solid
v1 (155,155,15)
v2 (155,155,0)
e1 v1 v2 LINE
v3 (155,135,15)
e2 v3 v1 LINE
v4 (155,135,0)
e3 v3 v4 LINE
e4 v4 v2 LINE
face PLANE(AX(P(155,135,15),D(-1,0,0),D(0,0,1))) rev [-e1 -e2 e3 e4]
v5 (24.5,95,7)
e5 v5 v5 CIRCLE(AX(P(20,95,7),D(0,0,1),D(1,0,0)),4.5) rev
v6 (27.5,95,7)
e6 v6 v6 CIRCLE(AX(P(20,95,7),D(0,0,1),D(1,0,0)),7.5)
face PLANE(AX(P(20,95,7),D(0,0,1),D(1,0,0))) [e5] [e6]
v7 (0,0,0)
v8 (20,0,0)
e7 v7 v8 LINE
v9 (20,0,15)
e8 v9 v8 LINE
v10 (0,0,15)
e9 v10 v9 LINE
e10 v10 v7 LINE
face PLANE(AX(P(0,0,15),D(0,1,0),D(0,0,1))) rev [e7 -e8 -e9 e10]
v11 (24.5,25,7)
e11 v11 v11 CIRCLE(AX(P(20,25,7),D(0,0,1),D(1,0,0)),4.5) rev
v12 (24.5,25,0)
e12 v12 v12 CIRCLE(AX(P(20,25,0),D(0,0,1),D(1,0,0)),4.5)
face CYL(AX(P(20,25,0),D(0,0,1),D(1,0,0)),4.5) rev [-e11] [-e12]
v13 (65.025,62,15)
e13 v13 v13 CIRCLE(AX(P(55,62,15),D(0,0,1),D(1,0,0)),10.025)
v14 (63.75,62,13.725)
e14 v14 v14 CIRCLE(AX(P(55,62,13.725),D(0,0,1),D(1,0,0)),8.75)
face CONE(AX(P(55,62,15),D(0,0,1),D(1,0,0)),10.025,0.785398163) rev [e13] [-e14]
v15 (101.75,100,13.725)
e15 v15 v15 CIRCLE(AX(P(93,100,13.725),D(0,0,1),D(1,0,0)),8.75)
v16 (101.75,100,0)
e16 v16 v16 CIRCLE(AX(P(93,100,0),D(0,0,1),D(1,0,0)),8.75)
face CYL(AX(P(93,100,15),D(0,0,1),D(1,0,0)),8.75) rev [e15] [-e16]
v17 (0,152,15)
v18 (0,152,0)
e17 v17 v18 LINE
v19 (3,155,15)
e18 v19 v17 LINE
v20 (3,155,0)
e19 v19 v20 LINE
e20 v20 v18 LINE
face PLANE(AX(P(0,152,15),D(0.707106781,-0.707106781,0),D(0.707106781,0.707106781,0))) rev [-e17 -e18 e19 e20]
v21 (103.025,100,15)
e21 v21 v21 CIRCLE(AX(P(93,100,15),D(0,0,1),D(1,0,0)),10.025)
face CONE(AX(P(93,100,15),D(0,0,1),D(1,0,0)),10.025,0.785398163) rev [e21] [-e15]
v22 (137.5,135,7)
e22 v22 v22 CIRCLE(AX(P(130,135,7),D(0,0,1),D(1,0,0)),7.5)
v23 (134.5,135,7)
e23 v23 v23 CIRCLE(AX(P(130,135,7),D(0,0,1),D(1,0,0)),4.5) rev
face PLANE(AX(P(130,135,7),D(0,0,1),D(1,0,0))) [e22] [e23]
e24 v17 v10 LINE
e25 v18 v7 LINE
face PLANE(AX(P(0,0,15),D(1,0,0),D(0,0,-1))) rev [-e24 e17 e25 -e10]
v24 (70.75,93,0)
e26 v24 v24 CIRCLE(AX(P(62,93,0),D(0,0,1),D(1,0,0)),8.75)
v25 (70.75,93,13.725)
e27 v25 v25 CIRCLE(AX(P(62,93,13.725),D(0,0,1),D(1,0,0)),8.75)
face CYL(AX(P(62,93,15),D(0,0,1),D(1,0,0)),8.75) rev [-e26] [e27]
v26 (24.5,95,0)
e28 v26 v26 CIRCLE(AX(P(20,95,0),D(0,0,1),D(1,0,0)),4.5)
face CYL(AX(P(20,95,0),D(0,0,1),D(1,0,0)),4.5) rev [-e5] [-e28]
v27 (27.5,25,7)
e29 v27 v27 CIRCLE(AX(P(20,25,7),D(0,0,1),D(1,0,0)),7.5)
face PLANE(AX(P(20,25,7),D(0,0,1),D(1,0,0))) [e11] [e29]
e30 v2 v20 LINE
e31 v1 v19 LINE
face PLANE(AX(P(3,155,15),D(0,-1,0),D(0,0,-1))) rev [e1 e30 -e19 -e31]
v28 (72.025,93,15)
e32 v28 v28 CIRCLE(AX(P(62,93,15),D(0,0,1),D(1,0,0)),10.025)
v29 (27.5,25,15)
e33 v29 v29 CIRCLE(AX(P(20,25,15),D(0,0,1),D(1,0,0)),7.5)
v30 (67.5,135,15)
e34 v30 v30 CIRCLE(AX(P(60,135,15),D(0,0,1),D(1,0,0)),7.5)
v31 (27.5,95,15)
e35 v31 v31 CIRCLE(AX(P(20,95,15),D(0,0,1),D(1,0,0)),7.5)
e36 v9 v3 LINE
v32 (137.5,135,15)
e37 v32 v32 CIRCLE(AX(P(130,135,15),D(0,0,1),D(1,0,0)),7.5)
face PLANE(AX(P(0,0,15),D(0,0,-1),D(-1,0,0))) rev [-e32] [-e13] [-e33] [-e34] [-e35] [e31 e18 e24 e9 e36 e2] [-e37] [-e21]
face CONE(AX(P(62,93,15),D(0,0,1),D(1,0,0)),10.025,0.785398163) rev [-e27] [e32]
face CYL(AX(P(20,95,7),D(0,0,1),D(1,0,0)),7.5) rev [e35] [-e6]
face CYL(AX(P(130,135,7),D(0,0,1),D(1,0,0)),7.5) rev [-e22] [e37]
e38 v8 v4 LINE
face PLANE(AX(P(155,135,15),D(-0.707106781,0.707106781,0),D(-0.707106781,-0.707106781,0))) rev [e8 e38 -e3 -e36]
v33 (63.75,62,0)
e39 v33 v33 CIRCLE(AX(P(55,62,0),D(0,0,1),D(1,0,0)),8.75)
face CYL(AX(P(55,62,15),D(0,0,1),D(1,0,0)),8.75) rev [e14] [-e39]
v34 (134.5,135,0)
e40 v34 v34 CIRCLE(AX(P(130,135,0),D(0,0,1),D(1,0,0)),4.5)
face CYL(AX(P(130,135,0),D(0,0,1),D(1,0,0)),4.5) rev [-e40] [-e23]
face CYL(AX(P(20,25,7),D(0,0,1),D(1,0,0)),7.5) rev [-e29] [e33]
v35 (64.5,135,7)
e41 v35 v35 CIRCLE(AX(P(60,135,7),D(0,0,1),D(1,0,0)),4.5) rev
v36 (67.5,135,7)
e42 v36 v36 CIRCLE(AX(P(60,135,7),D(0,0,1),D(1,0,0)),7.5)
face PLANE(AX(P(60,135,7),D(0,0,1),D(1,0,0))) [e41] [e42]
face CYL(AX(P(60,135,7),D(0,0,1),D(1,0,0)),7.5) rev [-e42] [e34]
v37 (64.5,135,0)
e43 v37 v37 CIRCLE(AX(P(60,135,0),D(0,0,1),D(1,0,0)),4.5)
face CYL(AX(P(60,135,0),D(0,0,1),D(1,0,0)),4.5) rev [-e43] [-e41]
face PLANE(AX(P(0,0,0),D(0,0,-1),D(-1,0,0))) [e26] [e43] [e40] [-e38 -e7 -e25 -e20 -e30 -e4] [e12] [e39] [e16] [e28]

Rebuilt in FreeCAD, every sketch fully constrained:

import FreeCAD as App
import Part
import Sketcher

V = App.Vector

doc = App.newDocument("Part")
params = doc.addObject("Spreadsheet::Sheet", "Params")
for row, (alias, value) in enumerate([
    ("sketch1_width", "152 mm"),
    ("sketch1_width2", "20 mm"),
    ("pad1_length", "15 mm"),
    ("sketch2_diameter", "17.5 mm"),
    ("hole_diameter", "17.5 mm"),
    ("hole_csink_diameter", "20.05 mm"),
    ("sketch3_diameter", "9 mm"),
    ("sketch4_diameter", "15 mm"),
    ("pocket2_length", "8 mm"),
], start=1):
    params.set(f"A{row}", alias)
    params.set(f"B{row}", "=" + value)
    params.setAlias(f"B{row}", alias)

body = doc.addObject("PartDesign::Body", "Body")

# Sketch on XY plane
sketch1 = body.newObject("Sketcher::SketchObject", "Sketch")
sketch1.AttachmentSupport = (doc.getObject("XY_Plane"), [""])
sketch1.MapMode = "FlatFace"
sketch1.addGeometry(Part.LineSegment(V(20, 0, 0), V(155, 135, 0)), False)
sketch1.addGeometry(Part.LineSegment(V(155, 135, 0), V(155, 155, 0)), False)
sketch1.addGeometry(Part.LineSegment(V(155, 155, 0), V(3, 155, 0)), False)
sketch1.addGeometry(Part.LineSegment(V(3, 155, 0), V(0, 152, 0)), False)
sketch1.addGeometry(Part.LineSegment(V(0, 152, 0), V(0, 0, 0)), False)
sketch1.addGeometry(Part.LineSegment(V(0, 0, 0), V(20, 0, 0)), False)
sketch1.addConstraint(Sketcher.Constraint("Coincident", 0, 2, 1, 1))
sketch1.addConstraint(Sketcher.Constraint("Coincident", 1, 2, 2, 1))
sketch1.addConstraint(Sketcher.Constraint("Coincident", 2, 2, 3, 1))
sketch1.addConstraint(Sketcher.Constraint("Coincident", 3, 2, 4, 1))
sketch1.addConstraint(Sketcher.Constraint("Coincident", 4, 2, 5, 1))
sketch1.addConstraint(Sketcher.Constraint("Coincident", 5, 2, 0, 1))
sketch1.addConstraint(Sketcher.Constraint("Vertical", 1))
sketch1.addConstraint(Sketcher.Constraint("Horizontal", 2))
sketch1.addConstraint(Sketcher.Constraint("Vertical", 4))
sketch1.addConstraint(Sketcher.Constraint("Horizontal", 5))
sketch1.addConstraint(Sketcher.Constraint("Coincident", 4, 2, -1, 1))
sketch1.addConstraint(Sketcher.Constraint("Parallel", 0, 3))
sketch1.addConstraint(Sketcher.Constraint("Equal", 5, 1))
sketch1.addConstraint(Sketcher.Constraint("Equal", 2, 4))
sketch1.addConstraint(Sketcher.Constraint("DistanceX", 2, 2, 2, 1, 152.0))
sketch1.addConstraint(Sketcher.Constraint("DistanceX", 5, 1, 5, 2, 20.0))
sketch1.addConstraint(Sketcher.Constraint("DistanceX", -1, 1, 0, 2, 155.0))
sketch1.setExpression("Constraints[14]", "Params.sketch1_width")
sketch1.setExpression("Constraints[15]", "Params.sketch1_width2")
pad1 = body.newObject("PartDesign::Pad", "Pad")
pad1.Profile = sketch1
pad1.setExpression("Length", "Params.pad1_length")

# Sketch on XY plane
sketch2 = body.newObject("Sketcher::SketchObject", "Sketch001")
sketch2.AttachmentSupport = (doc.getObject("XY_Plane"), [""])
sketch2.MapMode = "FlatFace"
sketch2.AttachmentOffset = App.Placement(V(0, 0, 15), App.Rotation())
sketch2.addGeometry(Part.Circle(V(62, 93, 0), V(0, 0, 1), 8.75), False)
sketch2.addGeometry(Part.Circle(V(55, 62, 0), V(0, 0, 1), 8.75), False)
sketch2.addGeometry(Part.Circle(V(93, 100, 0), V(0, 0, 1), 8.75), False)
sketch2.addConstraint(Sketcher.Constraint("Equal", 0, 1))
sketch2.addConstraint(Sketcher.Constraint("Equal", 1, 2))
sketch2.addConstraint(Sketcher.Constraint("Diameter", 0, 17.5))
sketch2.addConstraint(Sketcher.Constraint("DistanceX", -1, 1, 0, 3, 62.0))
sketch2.addConstraint(Sketcher.Constraint("DistanceY", -1, 1, 0, 3, 93.0))
sketch2.addConstraint(Sketcher.Constraint("DistanceX", -1, 1, 1, 3, 55.0))
sketch2.addConstraint(Sketcher.Constraint("DistanceY", -1, 1, 1, 3, 62.0))
sketch2.addConstraint(Sketcher.Constraint("DistanceX", -1, 1, 2, 3, 93.0))
sketch2.addConstraint(Sketcher.Constraint("DistanceY", -1, 1, 2, 3, 100.0))
sketch2.setExpression("Constraints[2]", "Params.sketch2_diameter")
doc.recompute()
hole = body.newObject("PartDesign::Hole", "Hole")
hole.Profile = sketch2
hole.ThreadType = "None"
hole.setExpression("Diameter", "Params.hole_diameter")
hole.DepthType = "ThroughAll"
hole.HoleCutType = "Countersink"
hole.setExpression("HoleCutDiameter", "Params.hole_csink_diameter")
hole.HoleCutCountersinkAngle = 90

# Sketch on XY plane
sketch3 = body.newObject("Sketcher::SketchObject", "Sketch002")
sketch3.AttachmentSupport = (doc.getObject("XY_Plane"), [""])
sketch3.MapMode = "FlatFace"
sketch3.AttachmentOffset = App.Placement(V(0, 0, 15), App.Rotation())
sketch3.addGeometry(Part.Circle(V(60, 135, 0), V(0, 0, 1), 4.5), False)
sketch3.addGeometry(Part.Circle(V(20, 95, 0), V(0, 0, 1), 4.5), False)
sketch3.addGeometry(Part.Circle(V(130, 135, 0), V(0, 0, 1), 4.5), False)
sketch3.addGeometry(Part.Circle(V(20, 25, 0), V(0, 0, 1), 4.5), False)
sketch3.addConstraint(Sketcher.Constraint("Equal", 0, 1))
sketch3.addConstraint(Sketcher.Constraint("Equal", 1, 2))
sketch3.addConstraint(Sketcher.Constraint("Equal", 2, 3))
sketch3.addConstraint(Sketcher.Constraint("Horizontal", 0, 3, 2, 3))
sketch3.addConstraint(Sketcher.Constraint("Vertical", 1, 3, 3, 3))
sketch3.addConstraint(Sketcher.Constraint("Diameter", 0, 9.0))
sketch3.addConstraint(Sketcher.Constraint("DistanceX", -1, 1, 0, 3, 60.0))
sketch3.addConstraint(Sketcher.Constraint("DistanceY", -1, 1, 0, 3, 135.0))
sketch3.addConstraint(Sketcher.Constraint("DistanceX", -1, 1, 1, 3, 20.0))
sketch3.addConstraint(Sketcher.Constraint("DistanceY", -1, 1, 1, 3, 95.0))
sketch3.addConstraint(Sketcher.Constraint("DistanceX", -1, 1, 2, 3, 130.0))
sketch3.addConstraint(Sketcher.Constraint("DistanceY", -1, 1, 3, 3, 25.0))
sketch3.setExpression("Constraints[5]", "Params.sketch3_diameter")
pocket1 = body.newObject("PartDesign::Pocket", "Pocket")
pocket1.Profile = sketch3
pocket1.Type = "ThroughAll"

# Sketch on XY plane
sketch4 = body.newObject("Sketcher::SketchObject", "Sketch003")
sketch4.AttachmentSupport = (doc.getObject("XY_Plane"), [""])
sketch4.MapMode = "FlatFace"
sketch4.AttachmentOffset = App.Placement(V(0, 0, 15), App.Rotation())
sketch4.addGeometry(Part.Circle(V(20, 95, 0), V(0, 0, 1), 7.5), False)
sketch4.addGeometry(Part.Circle(V(20, 25, 0), V(0, 0, 1), 7.5), False)
sketch4.addGeometry(Part.Circle(V(60, 135, 0), V(0, 0, 1), 7.5), False)
sketch4.addGeometry(Part.Circle(V(130, 135, 0), V(0, 0, 1), 7.5), False)
sketch4.addConstraint(Sketcher.Constraint("Equal", 0, 1))
sketch4.addConstraint(Sketcher.Constraint("Equal", 1, 2))
sketch4.addConstraint(Sketcher.Constraint("Equal", 2, 3))
sketch4.addConstraint(Sketcher.Constraint("Horizontal", 2, 3, 3, 3))
sketch4.addConstraint(Sketcher.Constraint("Vertical", 0, 3, 1, 3))
sketch4.addConstraint(Sketcher.Constraint("Diameter", 0, 15.0))
sketch4.addConstraint(Sketcher.Constraint("DistanceX", -1, 1, 0, 3, 20.0))
sketch4.addConstraint(Sketcher.Constraint("DistanceY", -1, 1, 0, 3, 95.0))
sketch4.addConstraint(Sketcher.Constraint("DistanceY", -1, 1, 1, 3, 25.0))
sketch4.addConstraint(Sketcher.Constraint("DistanceX", -1, 1, 2, 3, 60.0))
sketch4.addConstraint(Sketcher.Constraint("DistanceY", -1, 1, 2, 3, 135.0))
sketch4.addConstraint(Sketcher.Constraint("DistanceX", -1, 1, 3, 3, 130.0))
sketch4.setExpression("Constraints[5]", "Params.sketch4_diameter")
pocket2 = body.newObject("PartDesign::Pocket", "Pocket001")
pocket2.Profile = sketch4
pocket2.setExpression("Length", "Params.pocket2_length")

doc.recompute()
